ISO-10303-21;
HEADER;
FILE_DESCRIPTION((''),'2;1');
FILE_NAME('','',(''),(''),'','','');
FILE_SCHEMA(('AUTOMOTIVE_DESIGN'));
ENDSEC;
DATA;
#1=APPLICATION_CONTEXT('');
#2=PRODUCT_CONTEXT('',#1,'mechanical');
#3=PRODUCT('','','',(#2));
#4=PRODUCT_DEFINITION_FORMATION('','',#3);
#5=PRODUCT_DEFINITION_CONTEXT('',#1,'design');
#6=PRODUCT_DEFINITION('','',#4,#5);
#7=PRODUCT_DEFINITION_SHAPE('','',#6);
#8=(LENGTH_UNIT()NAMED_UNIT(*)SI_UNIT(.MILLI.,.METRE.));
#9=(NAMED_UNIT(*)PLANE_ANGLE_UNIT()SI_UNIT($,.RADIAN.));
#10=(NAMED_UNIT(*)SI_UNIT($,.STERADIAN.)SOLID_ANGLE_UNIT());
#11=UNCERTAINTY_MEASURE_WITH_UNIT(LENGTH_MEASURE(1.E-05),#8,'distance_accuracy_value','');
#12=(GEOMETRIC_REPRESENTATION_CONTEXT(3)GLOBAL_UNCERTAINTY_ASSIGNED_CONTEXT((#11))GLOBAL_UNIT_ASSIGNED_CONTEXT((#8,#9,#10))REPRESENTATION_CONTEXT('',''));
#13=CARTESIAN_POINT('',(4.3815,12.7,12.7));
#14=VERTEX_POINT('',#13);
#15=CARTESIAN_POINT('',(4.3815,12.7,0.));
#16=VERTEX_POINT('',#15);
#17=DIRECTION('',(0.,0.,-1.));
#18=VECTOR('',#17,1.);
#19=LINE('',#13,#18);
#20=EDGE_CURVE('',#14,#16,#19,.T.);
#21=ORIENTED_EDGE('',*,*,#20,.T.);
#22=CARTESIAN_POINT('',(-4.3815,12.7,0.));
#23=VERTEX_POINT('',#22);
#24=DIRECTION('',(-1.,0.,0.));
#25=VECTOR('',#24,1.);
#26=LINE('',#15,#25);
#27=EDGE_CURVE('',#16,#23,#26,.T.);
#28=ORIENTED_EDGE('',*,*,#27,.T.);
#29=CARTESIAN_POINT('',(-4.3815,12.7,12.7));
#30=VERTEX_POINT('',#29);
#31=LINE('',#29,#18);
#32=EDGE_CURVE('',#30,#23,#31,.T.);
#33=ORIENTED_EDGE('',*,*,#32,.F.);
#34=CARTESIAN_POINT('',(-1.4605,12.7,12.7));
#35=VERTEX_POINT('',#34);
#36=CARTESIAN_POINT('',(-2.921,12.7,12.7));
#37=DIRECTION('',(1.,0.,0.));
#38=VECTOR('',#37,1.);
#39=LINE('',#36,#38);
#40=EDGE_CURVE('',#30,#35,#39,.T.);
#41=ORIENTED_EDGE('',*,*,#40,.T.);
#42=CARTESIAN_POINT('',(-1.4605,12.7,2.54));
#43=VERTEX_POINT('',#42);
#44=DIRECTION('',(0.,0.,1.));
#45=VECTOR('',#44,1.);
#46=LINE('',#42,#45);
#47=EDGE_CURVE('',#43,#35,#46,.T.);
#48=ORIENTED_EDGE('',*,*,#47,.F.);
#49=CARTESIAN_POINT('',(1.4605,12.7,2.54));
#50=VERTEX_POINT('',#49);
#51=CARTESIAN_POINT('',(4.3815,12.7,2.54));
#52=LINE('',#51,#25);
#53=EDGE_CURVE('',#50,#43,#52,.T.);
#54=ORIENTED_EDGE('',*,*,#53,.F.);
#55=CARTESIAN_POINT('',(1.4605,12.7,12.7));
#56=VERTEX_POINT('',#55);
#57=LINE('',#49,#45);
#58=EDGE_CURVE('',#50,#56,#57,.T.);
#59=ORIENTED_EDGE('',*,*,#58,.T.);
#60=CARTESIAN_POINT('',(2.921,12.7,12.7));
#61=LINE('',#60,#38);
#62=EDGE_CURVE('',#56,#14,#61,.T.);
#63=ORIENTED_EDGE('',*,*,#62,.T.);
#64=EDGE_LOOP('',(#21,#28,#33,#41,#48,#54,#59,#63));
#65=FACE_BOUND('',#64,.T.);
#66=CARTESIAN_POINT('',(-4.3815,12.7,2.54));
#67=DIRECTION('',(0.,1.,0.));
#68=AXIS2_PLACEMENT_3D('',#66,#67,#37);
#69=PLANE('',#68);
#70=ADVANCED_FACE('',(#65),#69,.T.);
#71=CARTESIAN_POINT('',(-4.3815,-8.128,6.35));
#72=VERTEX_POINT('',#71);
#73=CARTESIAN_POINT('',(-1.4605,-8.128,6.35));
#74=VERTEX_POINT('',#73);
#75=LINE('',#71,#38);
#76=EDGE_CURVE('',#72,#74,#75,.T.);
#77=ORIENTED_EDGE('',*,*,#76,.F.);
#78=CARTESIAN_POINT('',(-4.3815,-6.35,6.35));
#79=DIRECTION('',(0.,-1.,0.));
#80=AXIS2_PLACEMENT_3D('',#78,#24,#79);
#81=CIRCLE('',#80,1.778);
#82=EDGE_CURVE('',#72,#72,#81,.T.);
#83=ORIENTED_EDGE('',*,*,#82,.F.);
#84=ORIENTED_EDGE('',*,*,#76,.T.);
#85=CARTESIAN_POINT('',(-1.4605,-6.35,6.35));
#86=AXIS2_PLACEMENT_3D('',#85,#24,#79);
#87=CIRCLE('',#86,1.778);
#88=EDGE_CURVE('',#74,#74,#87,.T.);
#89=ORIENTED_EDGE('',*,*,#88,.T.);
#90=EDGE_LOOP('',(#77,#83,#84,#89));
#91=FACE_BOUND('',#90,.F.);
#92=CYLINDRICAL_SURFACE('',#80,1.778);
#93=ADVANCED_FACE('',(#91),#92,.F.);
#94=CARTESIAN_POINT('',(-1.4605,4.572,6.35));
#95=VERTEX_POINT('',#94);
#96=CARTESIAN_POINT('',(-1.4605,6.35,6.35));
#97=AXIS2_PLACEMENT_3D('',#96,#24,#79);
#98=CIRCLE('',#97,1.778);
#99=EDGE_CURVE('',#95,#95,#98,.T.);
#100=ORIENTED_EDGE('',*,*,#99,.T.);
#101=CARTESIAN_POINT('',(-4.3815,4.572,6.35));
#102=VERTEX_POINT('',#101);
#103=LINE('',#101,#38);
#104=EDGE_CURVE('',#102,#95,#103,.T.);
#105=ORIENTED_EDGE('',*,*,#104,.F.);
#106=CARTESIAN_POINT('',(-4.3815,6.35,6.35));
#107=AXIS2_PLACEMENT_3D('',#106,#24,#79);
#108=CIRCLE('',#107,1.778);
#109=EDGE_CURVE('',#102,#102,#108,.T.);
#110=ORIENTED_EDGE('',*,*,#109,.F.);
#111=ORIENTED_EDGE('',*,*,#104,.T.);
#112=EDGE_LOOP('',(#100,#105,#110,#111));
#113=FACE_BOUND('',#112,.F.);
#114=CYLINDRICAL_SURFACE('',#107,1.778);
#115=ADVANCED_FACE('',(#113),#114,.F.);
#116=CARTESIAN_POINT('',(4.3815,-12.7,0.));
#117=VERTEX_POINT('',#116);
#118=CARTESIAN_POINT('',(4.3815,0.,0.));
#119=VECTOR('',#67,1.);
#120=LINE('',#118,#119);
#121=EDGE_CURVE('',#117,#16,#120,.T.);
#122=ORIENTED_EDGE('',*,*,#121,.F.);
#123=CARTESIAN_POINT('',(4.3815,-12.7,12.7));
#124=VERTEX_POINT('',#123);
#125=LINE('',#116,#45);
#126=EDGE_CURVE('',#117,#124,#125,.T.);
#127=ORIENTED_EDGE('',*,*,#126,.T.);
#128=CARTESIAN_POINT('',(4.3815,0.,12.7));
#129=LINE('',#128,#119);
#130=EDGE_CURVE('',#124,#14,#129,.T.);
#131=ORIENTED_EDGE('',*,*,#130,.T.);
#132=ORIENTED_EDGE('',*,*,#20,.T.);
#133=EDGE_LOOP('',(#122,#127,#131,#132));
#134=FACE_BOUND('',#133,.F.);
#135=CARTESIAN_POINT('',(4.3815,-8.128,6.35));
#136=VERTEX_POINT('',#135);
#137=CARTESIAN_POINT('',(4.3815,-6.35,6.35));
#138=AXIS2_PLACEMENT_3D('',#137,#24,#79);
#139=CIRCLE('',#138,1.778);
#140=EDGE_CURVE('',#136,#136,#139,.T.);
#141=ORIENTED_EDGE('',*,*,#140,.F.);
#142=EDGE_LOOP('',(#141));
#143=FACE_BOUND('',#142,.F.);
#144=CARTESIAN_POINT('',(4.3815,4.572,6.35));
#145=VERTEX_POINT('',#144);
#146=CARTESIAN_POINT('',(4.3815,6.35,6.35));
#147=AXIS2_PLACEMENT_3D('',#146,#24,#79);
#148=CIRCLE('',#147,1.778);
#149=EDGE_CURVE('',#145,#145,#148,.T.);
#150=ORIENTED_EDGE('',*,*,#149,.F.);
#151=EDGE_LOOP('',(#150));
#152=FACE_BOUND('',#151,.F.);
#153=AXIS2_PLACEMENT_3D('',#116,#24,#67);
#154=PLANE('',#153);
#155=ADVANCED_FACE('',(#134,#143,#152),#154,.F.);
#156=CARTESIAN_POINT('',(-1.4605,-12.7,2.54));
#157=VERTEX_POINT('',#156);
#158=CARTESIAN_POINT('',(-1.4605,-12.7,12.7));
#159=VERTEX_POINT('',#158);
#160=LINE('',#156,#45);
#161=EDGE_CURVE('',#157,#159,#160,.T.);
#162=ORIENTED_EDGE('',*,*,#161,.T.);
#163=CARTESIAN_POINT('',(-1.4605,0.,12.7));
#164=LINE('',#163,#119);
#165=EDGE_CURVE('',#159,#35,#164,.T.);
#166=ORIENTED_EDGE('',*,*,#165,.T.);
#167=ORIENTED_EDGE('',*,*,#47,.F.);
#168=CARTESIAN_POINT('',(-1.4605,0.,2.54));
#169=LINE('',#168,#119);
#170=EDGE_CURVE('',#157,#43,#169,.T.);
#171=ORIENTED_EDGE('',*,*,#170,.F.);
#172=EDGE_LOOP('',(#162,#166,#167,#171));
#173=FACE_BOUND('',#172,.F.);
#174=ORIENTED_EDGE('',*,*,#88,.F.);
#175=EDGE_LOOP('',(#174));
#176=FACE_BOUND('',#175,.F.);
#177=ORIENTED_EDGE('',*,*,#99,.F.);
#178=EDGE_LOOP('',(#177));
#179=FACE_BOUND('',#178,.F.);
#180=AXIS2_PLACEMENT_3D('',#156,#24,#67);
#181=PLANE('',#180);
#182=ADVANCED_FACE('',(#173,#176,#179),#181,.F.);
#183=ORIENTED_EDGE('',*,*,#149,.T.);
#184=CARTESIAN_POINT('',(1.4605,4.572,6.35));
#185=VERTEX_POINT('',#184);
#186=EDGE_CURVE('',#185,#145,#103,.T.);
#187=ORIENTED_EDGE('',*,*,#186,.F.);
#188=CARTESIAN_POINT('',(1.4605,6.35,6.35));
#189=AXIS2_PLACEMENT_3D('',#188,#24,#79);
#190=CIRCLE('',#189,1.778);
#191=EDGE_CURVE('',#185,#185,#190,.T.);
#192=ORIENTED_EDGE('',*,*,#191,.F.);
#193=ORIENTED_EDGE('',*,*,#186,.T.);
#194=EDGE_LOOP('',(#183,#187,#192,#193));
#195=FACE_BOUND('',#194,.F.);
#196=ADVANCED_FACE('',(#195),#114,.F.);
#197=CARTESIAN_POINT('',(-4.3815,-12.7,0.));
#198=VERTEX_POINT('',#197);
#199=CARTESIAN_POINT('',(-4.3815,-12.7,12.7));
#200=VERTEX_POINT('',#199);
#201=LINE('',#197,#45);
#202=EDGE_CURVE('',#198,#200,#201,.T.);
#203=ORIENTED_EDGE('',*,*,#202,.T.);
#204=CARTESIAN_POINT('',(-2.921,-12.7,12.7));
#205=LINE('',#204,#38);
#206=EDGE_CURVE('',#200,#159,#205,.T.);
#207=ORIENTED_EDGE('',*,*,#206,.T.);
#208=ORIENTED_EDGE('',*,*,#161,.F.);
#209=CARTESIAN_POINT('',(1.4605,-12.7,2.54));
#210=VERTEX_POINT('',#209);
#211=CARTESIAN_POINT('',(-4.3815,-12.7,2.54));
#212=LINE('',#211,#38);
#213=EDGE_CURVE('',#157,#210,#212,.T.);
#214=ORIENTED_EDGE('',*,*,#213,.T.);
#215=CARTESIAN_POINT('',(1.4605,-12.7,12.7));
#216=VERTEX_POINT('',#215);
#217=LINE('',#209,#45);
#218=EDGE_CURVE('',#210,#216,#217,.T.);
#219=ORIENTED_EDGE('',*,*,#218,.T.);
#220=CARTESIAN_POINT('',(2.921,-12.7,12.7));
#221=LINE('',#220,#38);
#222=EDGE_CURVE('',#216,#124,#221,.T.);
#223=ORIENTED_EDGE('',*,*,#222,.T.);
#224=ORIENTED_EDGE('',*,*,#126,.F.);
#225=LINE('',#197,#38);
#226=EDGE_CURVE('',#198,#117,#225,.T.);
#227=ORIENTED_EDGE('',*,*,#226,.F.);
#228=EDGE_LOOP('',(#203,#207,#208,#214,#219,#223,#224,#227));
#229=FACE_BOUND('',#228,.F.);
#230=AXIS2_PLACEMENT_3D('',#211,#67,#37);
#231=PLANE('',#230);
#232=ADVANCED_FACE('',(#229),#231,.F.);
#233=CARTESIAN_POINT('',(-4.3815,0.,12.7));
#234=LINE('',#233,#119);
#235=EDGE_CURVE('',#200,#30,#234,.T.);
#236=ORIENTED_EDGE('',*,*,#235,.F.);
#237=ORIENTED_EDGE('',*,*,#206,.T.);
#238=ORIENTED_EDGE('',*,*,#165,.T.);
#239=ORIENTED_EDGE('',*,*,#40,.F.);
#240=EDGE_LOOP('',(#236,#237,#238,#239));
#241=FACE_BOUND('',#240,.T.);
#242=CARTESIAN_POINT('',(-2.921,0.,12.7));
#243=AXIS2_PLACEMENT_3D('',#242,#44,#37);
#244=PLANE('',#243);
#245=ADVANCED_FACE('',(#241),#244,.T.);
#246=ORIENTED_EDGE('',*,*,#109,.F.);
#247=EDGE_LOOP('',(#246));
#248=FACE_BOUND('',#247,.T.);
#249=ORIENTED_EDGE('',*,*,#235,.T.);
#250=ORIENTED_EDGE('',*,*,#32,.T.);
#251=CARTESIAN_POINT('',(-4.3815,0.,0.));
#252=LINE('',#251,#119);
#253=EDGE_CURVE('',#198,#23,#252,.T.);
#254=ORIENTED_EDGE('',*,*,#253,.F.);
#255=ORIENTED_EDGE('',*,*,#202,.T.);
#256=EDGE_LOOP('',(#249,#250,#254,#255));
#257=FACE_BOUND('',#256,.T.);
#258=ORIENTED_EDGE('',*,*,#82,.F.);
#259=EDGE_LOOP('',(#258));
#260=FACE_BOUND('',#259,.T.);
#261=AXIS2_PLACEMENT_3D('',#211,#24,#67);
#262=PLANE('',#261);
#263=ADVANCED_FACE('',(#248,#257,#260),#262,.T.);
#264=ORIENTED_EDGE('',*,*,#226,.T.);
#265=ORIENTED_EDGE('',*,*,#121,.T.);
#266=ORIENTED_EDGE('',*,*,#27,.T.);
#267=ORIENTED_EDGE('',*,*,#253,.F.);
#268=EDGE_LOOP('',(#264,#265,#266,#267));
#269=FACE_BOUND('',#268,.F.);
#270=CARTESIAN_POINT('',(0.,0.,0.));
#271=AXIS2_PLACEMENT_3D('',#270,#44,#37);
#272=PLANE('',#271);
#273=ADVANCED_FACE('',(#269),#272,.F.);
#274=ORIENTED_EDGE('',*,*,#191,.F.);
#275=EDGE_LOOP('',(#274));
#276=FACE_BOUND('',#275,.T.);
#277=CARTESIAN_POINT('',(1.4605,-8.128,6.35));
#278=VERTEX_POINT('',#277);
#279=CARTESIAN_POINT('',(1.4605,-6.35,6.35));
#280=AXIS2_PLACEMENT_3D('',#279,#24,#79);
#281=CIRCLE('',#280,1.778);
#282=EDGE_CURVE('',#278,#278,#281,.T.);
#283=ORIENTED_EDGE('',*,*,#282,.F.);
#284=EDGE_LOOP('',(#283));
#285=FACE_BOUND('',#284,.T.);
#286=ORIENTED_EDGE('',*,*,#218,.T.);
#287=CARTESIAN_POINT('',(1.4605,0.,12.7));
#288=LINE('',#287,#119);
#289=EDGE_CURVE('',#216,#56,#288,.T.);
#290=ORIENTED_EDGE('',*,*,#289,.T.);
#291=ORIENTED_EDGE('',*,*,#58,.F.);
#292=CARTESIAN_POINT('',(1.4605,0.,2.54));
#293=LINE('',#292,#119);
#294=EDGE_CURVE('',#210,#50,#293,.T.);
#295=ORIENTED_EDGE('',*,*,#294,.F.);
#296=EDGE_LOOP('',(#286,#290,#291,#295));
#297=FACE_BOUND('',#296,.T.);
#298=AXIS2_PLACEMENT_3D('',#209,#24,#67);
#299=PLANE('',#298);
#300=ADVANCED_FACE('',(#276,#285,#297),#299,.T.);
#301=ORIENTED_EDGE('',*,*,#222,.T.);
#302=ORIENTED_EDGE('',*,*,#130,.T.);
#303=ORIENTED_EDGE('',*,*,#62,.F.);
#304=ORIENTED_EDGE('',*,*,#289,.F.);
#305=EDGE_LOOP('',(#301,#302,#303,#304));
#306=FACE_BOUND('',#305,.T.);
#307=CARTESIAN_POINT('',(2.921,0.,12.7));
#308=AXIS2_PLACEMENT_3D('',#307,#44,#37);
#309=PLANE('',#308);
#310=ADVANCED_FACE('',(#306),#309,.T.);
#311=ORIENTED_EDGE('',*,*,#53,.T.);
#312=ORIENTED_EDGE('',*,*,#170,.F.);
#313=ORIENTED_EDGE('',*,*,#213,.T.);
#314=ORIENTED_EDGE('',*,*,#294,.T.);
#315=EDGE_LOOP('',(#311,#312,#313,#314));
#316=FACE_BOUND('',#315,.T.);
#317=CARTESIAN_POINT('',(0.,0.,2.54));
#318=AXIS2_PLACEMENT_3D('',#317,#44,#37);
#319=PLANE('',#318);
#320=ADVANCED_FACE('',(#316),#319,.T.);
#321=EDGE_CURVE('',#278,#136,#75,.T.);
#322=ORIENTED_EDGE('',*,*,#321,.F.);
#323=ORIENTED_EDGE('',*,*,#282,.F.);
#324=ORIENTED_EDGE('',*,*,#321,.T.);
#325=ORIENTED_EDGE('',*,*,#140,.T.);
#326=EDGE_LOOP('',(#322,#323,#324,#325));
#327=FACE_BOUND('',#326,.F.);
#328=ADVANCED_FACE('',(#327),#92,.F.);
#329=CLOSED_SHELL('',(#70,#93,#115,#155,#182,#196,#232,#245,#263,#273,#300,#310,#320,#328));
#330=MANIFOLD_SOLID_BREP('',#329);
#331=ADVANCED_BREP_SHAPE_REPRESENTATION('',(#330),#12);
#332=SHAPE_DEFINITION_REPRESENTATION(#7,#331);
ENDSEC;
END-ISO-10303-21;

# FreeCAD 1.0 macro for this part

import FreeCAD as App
import Part
import Sketcher
Q = App.Units.Quantity


def add_polygon(sketch, points):
    """Adds a closed chain of lines whose ends are joined by coincident constraints."""
    first, n = sketch.GeometryCount, len(points)
    for a, b in zip(points, points[1:] + points[:1]):
        sketch.addGeometry(Part.LineSegment(App.Vector(*a, 0), App.Vector(*b, 0)), False)
    for i in range(n):
        sketch.addConstraint(Sketcher.Constraint("Coincident", first + i, 2, first + (i + 1) % n, 1))

doc = App.newDocument("Part")
body = doc.addObject("PartDesign::Body", "Body")

# Sketch on XY plane
sketch1 = doc.addObject("Sketcher::SketchObject", "Sketch")
body.addObject(sketch1)
sketch1.AttachmentSupport = (doc.XY_Plane, [""])
sketch1.MapMode = "FlatFace"
add_polygon(sketch1, [(-4, 13), (-4, -13), (4, -13), (4, 13)])  # lines 0-3
sketch1.addConstraint(Sketcher.Constraint("Vertical", 0))
sketch1.addConstraint(Sketcher.Constraint("Horizontal", 1))
sketch1.addConstraint(Sketcher.Constraint("Vertical", 2))
sketch1.addConstraint(Sketcher.Constraint("Horizontal", 3))
sketch1.addConstraint(Sketcher.Constraint("Symmetric", 0, 2, 2, 2, -1, 1))
sketch1.addConstraint(Sketcher.Constraint("DistanceY", 0, 2, 0, 1, Q("1 in")))
sketch1.addConstraint(Sketcher.Constraint("DistanceX", 1, 1, 1, 2, Q("0.345 in")))
pad1 = doc.addObject("PartDesign::Pad", "Pad")
body.addObject(pad1)
pad1.Profile = sketch1
pad1.Length = Q("0.1 in")

# Sketch on XY plane
sketch2 = doc.addObject("Sketcher::SketchObject", "Sketch001")
body.addObject(sketch2)
sketch2.AttachmentSupport = (doc.XY_Plane, [""])
sketch2.MapMode = "FlatFace"
sketch2.AttachmentOffset = App.Placement(App.Vector(0, 0, 0.1 * 25.4), App.Rotation())
add_polygon(sketch2, [(-4.4, 12.7), (-4.4, -12.7), (-1.5, -12.7), (-1.5, 12.7)])  # lines 0-3
add_polygon(sketch2, [(1.5, 12.7), (1.5, -12.7), (4.4, -12.7), (4.4, 12.7)])  # lines 4-7
sketch2.addConstraint(Sketcher.Constraint("Vertical", 0))
sketch2.addConstraint(Sketcher.Constraint("Horizontal", 1))
sketch2.addConstraint(Sketcher.Constraint("Vertical", 2))
sketch2.addConstraint(Sketcher.Constraint("Horizontal", 3))
sketch2.addConstraint(Sketcher.Constraint("Vertical", 4))
sketch2.addConstraint(Sketcher.Constraint("Horizontal", 5))
sketch2.addConstraint(Sketcher.Constraint("Vertical", 6))
sketch2.addConstraint(Sketcher.Constraint("Horizontal", 7))
sketch2.addConstraint(Sketcher.Constraint("Symmetric", 2, 2, 4, 2, -1, 1))
sketch2.addConstraint(Sketcher.Constraint("Symmetric", 0, 2, 6, 2, -1, 1))
sketch2.addConstraint(Sketcher.Constraint("Horizontal", 1, 2, 4, 2))
sketch2.addConstraint(Sketcher.Constraint("DistanceY", 0, 2, 0, 1, Q("1 in")))
sketch2.addConstraint(Sketcher.Constraint("DistanceX", 1, 1, 1, 2, Q("0.115 in")))
sketch2.addConstraint(Sketcher.Constraint("DistanceX", 0, 2, 4, 2, Q("0.23 in")))
pad2 = doc.addObject("PartDesign::Pad", "Pad001")
body.addObject(pad2)
pad2.Profile = sketch2
pad2.Length = Q("0.4 in")

# Sketch on YZ plane
sketch3 = doc.addObject("Sketcher::SketchObject", "Sketch002")
body.addObject(sketch3)
sketch3.AttachmentSupport = (doc.YZ_Plane, [""])
sketch3.MapMode = "FlatFace"
sketch3.AttachmentOffset = App.Placement(App.Vector(0, 0, -0.1725 * 25.4), App.Rotation())
sketch3.addGeometry(Part.Circle(App.Vector(6.3, 6.3, 0), App.Vector(0, 0, 1), 1.8), False)
sketch3.addGeometry(Part.Circle(App.Vector(-6.3, 6.3, 0), App.Vector(0, 0, 1), 1.8), False)
sketch3.addConstraint(Sketcher.Constraint("Equal", 0, 1))
sketch3.addConstraint(Sketcher.Constraint("Symmetric", 0, 3, 1, 3, -2))
sketch3.addConstraint(Sketcher.Constraint("Diameter", 0, Q("0.14 in")))
sketch3.addConstraint(Sketcher.Constraint("DistanceX", 1, 3, 0, 3, Q("0.5 in")))
sketch3.addConstraint(Sketcher.Constraint("DistanceY", -1, 1, 0, 3, Q("0.25 in")))
pocket1 = doc.addObject("PartDesign::Pocket", "Pocket")
body.addObject(pocket1)
pocket1.Profile = sketch3
pocket1.Length = Q("1 in")
pocket1.Reversed = True

doc.recompute()
